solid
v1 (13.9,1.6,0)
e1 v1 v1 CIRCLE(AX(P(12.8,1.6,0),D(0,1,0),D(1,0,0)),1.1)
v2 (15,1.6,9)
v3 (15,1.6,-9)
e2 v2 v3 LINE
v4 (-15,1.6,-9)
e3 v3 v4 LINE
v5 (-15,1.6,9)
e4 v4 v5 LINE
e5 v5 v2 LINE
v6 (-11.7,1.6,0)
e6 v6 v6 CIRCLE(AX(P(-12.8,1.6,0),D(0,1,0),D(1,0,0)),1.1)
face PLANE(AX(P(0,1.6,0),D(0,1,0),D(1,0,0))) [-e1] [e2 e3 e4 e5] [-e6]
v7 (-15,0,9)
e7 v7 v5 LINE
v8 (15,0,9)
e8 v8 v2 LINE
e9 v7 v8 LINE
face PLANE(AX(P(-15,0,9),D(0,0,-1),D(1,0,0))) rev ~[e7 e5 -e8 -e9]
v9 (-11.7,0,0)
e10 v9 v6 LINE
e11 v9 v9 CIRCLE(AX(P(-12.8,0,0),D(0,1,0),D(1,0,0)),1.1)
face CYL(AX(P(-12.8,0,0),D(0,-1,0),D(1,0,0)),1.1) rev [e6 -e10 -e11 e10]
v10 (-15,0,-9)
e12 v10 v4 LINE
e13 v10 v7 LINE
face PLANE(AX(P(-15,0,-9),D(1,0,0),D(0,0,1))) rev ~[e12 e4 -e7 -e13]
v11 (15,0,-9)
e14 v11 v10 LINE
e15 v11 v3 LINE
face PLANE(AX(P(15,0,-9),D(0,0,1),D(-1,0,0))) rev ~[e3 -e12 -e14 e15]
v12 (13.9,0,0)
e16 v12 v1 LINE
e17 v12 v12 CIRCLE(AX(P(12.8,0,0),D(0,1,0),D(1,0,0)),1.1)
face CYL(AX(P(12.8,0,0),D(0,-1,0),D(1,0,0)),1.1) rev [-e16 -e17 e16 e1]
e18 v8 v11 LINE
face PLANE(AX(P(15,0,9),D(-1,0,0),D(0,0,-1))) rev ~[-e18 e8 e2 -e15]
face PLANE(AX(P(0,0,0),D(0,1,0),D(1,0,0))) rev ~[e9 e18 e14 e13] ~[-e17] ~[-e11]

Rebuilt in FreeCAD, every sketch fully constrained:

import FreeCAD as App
import Part
import Sketcher

doc = App.newDocument("Part")
body = doc.addObject("PartDesign::Body", "Body")

# Sketch on XZ plane
sketch1 = doc.addObject("Sketcher::SketchObject", "Sketch")
body.addObject(sketch1)
sketch1.AttachmentSupport = (doc.XZ_Plane, [""])
sketch1.MapMode = "FlatFace"
sketch1.addGeometry([
    Part.LineSegment(App.Vector(-15, -9, 0), App.Vector(-15, 9, 0)),  # 0
    Part.LineSegment(App.Vector(-15, 9, 0), App.Vector(15, 9, 0)),  # 1
    Part.LineSegment(App.Vector(15, 9, 0), App.Vector(15, -9, 0)),  # 2
    Part.LineSegment(App.Vector(15, -9, 0), App.Vector(-15, -9, 0)),  # 3
    Part.Circle(App.Vector(-12.8, 0, 0), App.Vector(0, 0, 1), 1.1),  # 4
    Part.Circle(App.Vector(12.8, 0, 0), App.Vector(0, 0, 1), 1.1),  # 5
], False)
sketch1.addConstraint([
    Sketcher.Constraint("Coincident", 0, 2, 1, 1),
    Sketcher.Constraint("Coincident", 1, 2, 2, 1),
    Sketcher.Constraint("Coincident", 2, 2, 3, 1),
    Sketcher.Constraint("Coincident", 3, 2, 0, 1),
    Sketcher.Constraint("Vertical", 0),
    Sketcher.Constraint("Horizontal", 1),
    Sketcher.Constraint("Vertical", 2),
    Sketcher.Constraint("Horizontal", 3),
    Sketcher.Constraint("Equal", 4, 5),
    Sketcher.Constraint("Symmetric", 4, 3, 5, 3, -1, 1),
    Sketcher.Constraint("Symmetric", 0, 2, 2, 2, -1, 1),
    Sketcher.Constraint("PointOnObject", 4, 3, -1),
    Sketcher.Constraint("Diameter", 4, 2.2),
    Sketcher.Constraint("DistanceX", 1, 1, 1, 2, 30.0),
    Sketcher.Constraint("DistanceY", 0, 1, 0, 2, 18.0),
    Sketcher.Constraint("DistanceX", 0, 2, 4, 3, 2.2),
])
pad1 = doc.addObject("PartDesign::Pad", "Pad")
body.addObject(pad1)
pad1.Profile = sketch1
pad1.Length = 1.6
pad1.Reversed = True

doc.recompute()
